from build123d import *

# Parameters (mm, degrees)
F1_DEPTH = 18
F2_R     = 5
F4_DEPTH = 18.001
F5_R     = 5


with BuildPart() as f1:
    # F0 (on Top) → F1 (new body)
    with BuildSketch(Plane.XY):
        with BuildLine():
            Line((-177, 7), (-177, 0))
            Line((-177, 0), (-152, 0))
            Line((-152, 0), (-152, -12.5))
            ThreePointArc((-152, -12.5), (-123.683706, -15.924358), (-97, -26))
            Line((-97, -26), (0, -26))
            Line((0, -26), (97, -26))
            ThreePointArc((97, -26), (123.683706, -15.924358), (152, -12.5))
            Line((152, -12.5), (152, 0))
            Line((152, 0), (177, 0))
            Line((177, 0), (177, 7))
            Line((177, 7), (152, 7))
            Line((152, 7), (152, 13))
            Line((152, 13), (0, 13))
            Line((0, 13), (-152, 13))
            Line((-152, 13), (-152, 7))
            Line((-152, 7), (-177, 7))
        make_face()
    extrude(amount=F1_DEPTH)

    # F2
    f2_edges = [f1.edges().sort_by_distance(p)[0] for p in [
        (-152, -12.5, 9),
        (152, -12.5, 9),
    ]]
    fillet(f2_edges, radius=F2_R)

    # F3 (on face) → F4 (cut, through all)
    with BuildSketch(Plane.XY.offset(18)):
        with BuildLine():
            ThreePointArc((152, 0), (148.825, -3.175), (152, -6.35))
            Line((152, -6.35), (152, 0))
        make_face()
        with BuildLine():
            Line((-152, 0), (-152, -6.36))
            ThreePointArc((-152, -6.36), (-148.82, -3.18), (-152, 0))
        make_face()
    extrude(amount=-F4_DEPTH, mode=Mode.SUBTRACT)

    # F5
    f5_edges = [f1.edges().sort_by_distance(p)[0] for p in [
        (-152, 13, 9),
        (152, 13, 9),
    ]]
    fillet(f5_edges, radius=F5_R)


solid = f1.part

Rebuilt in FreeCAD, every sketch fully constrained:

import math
import FreeCAD as App
import Part
import Sketcher


def edges_at(feature, points):
    """Names of the edges that pass closest to the given points."""
    edges = feature.Shape.Edges
    near = lambda p: min(range(len(edges)), key=lambda i: edges[i].distToShape(Part.Vertex(*p))[0])
    return sorted({f"Edge{near(p) + 1}" for p in points})

doc = App.newDocument("Part")
body = doc.addObject("PartDesign::Body", "Body")

sketch1 = body.newObject("Sketcher::SketchObject", "Sketch")
sketch1.AttachmentSupport = (doc.getObject("XY_Plane"), [""])
sketch1.MapMode = "FlatFace"
sketch1.addGeometry([
    Part.LineSegment(App.Vector(-177, 7, 0), App.Vector(-177, 0, 0)),
    Part.LineSegment(App.Vector(-177, 0, 0), App.Vector(-152, 0, 0)),
    Part.LineSegment(App.Vector(-152, 0, 0), App.Vector(-152, -12, 0)),
    Part.ArcOfCircle(Part.Circle(App.Vector(-152, -131, 0), App.Vector(0, 0, 1), 119), math.radians(62), math.radians(90)),
    Part.LineSegment(App.Vector(-97, -26, 0), App.Vector(97, -26, 0)),
    Part.ArcOfCircle(Part.Circle(App.Vector(152, -131, 0), App.Vector(0, 0, 1), 119), math.radians(90), math.radians(118)),
    Part.LineSegment(App.Vector(152, -12, 0), App.Vector(152, 0, 0)),
    Part.LineSegment(App.Vector(152, 0, 0), App.Vector(177, 0, 0)),
    Part.LineSegment(App.Vector(177, 0, 0), App.Vector(177, 7, 0)),
    Part.LineSegment(App.Vector(177, 7, 0), App.Vector(152, 7, 0)),
    Part.LineSegment(App.Vector(152, 7, 0), App.Vector(152, 13, 0)),
    Part.LineSegment(App.Vector(152, 13, 0), App.Vector(-152, 13, 0)),
    Part.LineSegment(App.Vector(-152, 13, 0), App.Vector(-152, 7, 0)),
    Part.LineSegment(App.Vector(-152, 7, 0), App.Vector(-177, 7, 0)),
], False)
sketch1.addConstraint([
    Sketcher.Constraint("Coincident", 0, 2, 1, 1),
    Sketcher.Constraint("Coincident", 1, 2, 2, 1),
    Sketcher.Constraint("Coincident", 2, 2, 3, 2),
    Sketcher.Constraint("Coincident", 3, 1, 4, 1),
    Sketcher.Constraint("Coincident", 4, 2, 5, 2),
    Sketcher.Constraint("Coincident", 5, 1, 6, 1),
    Sketcher.Constraint("Coincident", 6, 2, 7, 1),
    Sketcher.Constraint("Coincident", 7, 2, 8, 1),
    Sketcher.Constraint("Coincident", 8, 2, 9, 1),
    Sketcher.Constraint("Coincident", 9, 2, 10, 1),
    Sketcher.Constraint("Coincident", 10, 2, 11, 1),
    Sketcher.Constraint("Coincident", 11, 2, 12, 1),
    Sketcher.Constraint("Coincident", 12, 2, 13, 1),
    Sketcher.Constraint("Coincident", 13, 2, 0, 1),
    Sketcher.Constraint("Vertical", 0),
    Sketcher.Constraint("Horizontal", 1),
    Sketcher.Constraint("Vertical", 2),
    Sketcher.Constraint("Horizontal", 4),
    Sketcher.Constraint("Vertical", 6),
    Sketcher.Constraint("Horizontal", 7),
    Sketcher.Constraint("Vertical", 8),
    Sketcher.Constraint("Horizontal", 9),
    Sketcher.Constraint("Vertical", 10),
    Sketcher.Constraint("Horizontal", 11),
    Sketcher.Constraint("Vertical", 12),
    Sketcher.Constraint("Horizontal", 13),
    Sketcher.Constraint("Equal", 3, 5),
    Sketcher.Constraint("Symmetric", 1, 2, 6, 2, -1, 1),
    Sketcher.Constraint("Symmetric", 3, 3, 5, 3, -2),
    Sketcher.Constraint("Symmetric", 0, 2, 7, 2, -2),
    Sketcher.Constraint("Symmetric", 9, 2, 12, 2, -2),
    Sketcher.Constraint("Vertical", 3, 3, 1, 2),
    Sketcher.Constraint("Vertical", 6, 2, 9, 2),
    Sketcher.Constraint("DistanceX", 1, 1, 1, 2, 25.0),
    Sketcher.Constraint("DistanceX", 4, 1, 4, 2, 194.0),
    Sketcher.Constraint("DistanceX", 11, 2, 11, 1, 304.0),
    Sketcher.Constraint("DistanceY", 0, 2, 0, 1, 7.0),
    Sketcher.Constraint("DistanceY", 10, 1, 10, 2, 6.0),
    Sketcher.Constraint("DistanceY", 2, 2, 2, 1, 12.5),
    Sketcher.Constraint("DistanceY", 4, 2, -1, 1, 26.0),
])
pad1 = body.newObject("PartDesign::Pad", "Pad")
pad1.Profile = sketch1
pad1.Length = 18
doc.recompute()

fillet = body.newObject("PartDesign::Fillet", "Fillet")
fillet.Base = (pad1, edges_at(pad1, [(-152, -12.5, 9), (152, -12.5, 9)]))
fillet.Radius = 5

sketch2 = body.newObject("Sketcher::SketchObject", "Sketch001")
sketch2.AttachmentSupport = (doc.getObject("XY_Plane"), [""])
sketch2.MapMode = "FlatFace"
sketch2.AttachmentOffset = App.Placement(App.Vector(0, 0, 18), App.Rotation())
sketch2.addGeometry([
    Part.ArcOfCircle(Part.Circle(App.Vector(152, -3.2, 0), App.Vector(0, 0, 1), 3.2), math.radians(90), math.radians(270)),
    Part.LineSegment(App.Vector(152, -6.3, 0), App.Vector(152, 0, 0)),
    Part.LineSegment(App.Vector(-152, 0, 0), App.Vector(-152, -6.4, 0)),
    Part.ArcOfCircle(Part.Circle(App.Vector(-152, -3.2, 0), App.Vector(0, 0, 1), 3.2), math.radians(-90), math.radians(90)),
], False)
sketch2.addConstraint([
    Sketcher.Constraint("Coincident", 0, 1, 1, 2),
    Sketcher.Constraint("Coincident", 1, 1, 0, 2),
    Sketcher.Constraint("Coincident", 2, 1, 3, 2),
    Sketcher.Constraint("Coincident", 3, 1, 2, 2),
    Sketcher.Constraint("Vertical", 1),
    Sketcher.Constraint("Vertical", 2),
    Sketcher.Constraint("Symmetric", 0, 1, 2, 1, -1, 1),
    Sketcher.Constraint("PointOnObject", 0, 1, -1),
    Sketcher.Constraint("Vertical", 3, 3, 2, 1),
    Sketcher.Constraint("Radius", 3, 3.18),
    Sketcher.Constraint("DistanceX", -1, 1, 0, 3, 152.0),
    Sketcher.Constraint("DistanceX", 3, 3, -1, 1, 152.0),
    Sketcher.Constraint("Radius", 0, 3.175),
])
pocket1 = body.newObject("PartDesign::Pocket", "Pocket")
pocket1.Profile = sketch2
pocket1.Type = "ThroughAll"
doc.recompute()

fillet2 = body.newObject("PartDesign::Fillet", "Fillet001")
fillet2.Base = (pocket1, edges_at(pocket1, [(-152, 13, 9), (152, 13, 9)]))
fillet2.Radius = 5

doc.recompute()
